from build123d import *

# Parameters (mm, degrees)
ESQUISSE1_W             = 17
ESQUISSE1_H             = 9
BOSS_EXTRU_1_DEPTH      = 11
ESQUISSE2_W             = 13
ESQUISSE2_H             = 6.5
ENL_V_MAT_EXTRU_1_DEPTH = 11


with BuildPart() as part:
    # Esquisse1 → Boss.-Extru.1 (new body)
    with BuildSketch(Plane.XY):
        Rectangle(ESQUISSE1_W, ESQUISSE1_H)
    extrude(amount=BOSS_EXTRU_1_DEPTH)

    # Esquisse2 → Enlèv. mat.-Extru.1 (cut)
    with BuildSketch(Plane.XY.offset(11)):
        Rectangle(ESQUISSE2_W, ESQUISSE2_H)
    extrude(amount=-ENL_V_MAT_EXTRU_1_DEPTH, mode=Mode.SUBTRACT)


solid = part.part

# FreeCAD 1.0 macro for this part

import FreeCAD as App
import Part
import Sketcher

V = App.Vector


def add_polygon(sketch, points):
    """Adds a closed chain of lines whose ends are joined by coincident constraints."""
    first, n = sketch.GeometryCount, len(points)
    for a, b in zip(points, points[1:] + points[:1]):
        sketch.addGeometry(Part.LineSegment(App.Vector(*a, 0), App.Vector(*b, 0)), False)
    for i in range(n):
        sketch.addConstraint(Sketcher.Constraint("Coincident", first + i, 2, first + (i + 1) % n, 1))

doc = App.newDocument("Part")
params = doc.addObject("Spreadsheet::Sheet", "Params")
for row, (alias, value) in enumerate([
    ("sketch1_width", "17 mm"),
    ("sketch1_height", "9 mm"),
    ("pad1_length", "11 mm"),
    ("sketch2_width", "13 mm"),
    ("sketch2_height", "6.5 mm"),
    ("pocket1_length", "11 mm"),
], start=1):
    params.set(f"A{row}", alias)
    params.set(f"B{row}", "=" + value)
    params.setAlias(f"B{row}", alias)

body = doc.addObject("PartDesign::Body", "Body")

# Sketch on XY plane
sketch1 = body.newObject("Sketcher::SketchObject", "Sketch")
sketch1.AttachmentSupport = (doc.getObject("XY_Plane"), [""])
sketch1.MapMode = "FlatFace"
add_polygon(sketch1, [(-8.5, 4.5), (-8.5, -4.5), (8.5, -4.5), (8.5, 4.5)])  # lines 0-3
sketch1.addConstraint([
    Sketcher.Constraint("Vertical", 0),
    Sketcher.Constraint("Horizontal", 1),
    Sketcher.Constraint("Vertical", 2),
    Sketcher.Constraint("Horizontal", 3),
    Sketcher.Constraint("Symmetric", 0, 2, 2, 2, -1, 1),
    Sketcher.Constraint("DistanceX", 1, 1, 1, 2, 17.0),
    Sketcher.Constraint("DistanceY", 0, 2, 0, 1, 9.0),
])
sketch1.setExpression("Constraints[9]", "Params.sketch1_width")
sketch1.setExpression("Constraints[10]", "Params.sketch1_height")
pad1 = body.newObject("PartDesign::Pad", "Pad")
pad1.Profile = sketch1
pad1.setExpression("Length", "Params.pad1_length")

# Sketch on XY plane
sketch2 = body.newObject("Sketcher::SketchObject", "Sketch001")
sketch2.AttachmentSupport = (doc.getObject("XY_Plane"), [""])
sketch2.MapMode = "FlatFace"
sketch2.AttachmentOffset = App.Placement(V(0, 0, 11), App.Rotation())
add_polygon(sketch2, [(-6.5, 3.25), (-6.5, -3.25), (6.5, -3.25), (6.5, 3.25)])  # lines 0-3
sketch2.addConstraint([
    Sketcher.Constraint("Vertical", 0),
    Sketcher.Constraint("Horizontal", 1),
    Sketcher.Constraint("Vertical", 2),
    Sketcher.Constraint("Horizontal", 3),
    Sketcher.Constraint("Symmetric", 0, 2, 2, 2, -1, 1),
    Sketcher.Constraint("DistanceX", 1, 1, 1, 2, 13.0),
    Sketcher.Constraint("DistanceY", 0, 2, 0, 1, 6.5),
])
sketch2.setExpression("Constraints[9]", "Params.sketch2_width")
sketch2.setExpression("Constraints[10]", "Params.sketch2_height")
pocket1 = body.newObject("PartDesign::Pocket", "Pocket")
pocket1.Profile = sketch2
pocket1.setExpression("Length", "Params.pocket1_length")

doc.recompute()
